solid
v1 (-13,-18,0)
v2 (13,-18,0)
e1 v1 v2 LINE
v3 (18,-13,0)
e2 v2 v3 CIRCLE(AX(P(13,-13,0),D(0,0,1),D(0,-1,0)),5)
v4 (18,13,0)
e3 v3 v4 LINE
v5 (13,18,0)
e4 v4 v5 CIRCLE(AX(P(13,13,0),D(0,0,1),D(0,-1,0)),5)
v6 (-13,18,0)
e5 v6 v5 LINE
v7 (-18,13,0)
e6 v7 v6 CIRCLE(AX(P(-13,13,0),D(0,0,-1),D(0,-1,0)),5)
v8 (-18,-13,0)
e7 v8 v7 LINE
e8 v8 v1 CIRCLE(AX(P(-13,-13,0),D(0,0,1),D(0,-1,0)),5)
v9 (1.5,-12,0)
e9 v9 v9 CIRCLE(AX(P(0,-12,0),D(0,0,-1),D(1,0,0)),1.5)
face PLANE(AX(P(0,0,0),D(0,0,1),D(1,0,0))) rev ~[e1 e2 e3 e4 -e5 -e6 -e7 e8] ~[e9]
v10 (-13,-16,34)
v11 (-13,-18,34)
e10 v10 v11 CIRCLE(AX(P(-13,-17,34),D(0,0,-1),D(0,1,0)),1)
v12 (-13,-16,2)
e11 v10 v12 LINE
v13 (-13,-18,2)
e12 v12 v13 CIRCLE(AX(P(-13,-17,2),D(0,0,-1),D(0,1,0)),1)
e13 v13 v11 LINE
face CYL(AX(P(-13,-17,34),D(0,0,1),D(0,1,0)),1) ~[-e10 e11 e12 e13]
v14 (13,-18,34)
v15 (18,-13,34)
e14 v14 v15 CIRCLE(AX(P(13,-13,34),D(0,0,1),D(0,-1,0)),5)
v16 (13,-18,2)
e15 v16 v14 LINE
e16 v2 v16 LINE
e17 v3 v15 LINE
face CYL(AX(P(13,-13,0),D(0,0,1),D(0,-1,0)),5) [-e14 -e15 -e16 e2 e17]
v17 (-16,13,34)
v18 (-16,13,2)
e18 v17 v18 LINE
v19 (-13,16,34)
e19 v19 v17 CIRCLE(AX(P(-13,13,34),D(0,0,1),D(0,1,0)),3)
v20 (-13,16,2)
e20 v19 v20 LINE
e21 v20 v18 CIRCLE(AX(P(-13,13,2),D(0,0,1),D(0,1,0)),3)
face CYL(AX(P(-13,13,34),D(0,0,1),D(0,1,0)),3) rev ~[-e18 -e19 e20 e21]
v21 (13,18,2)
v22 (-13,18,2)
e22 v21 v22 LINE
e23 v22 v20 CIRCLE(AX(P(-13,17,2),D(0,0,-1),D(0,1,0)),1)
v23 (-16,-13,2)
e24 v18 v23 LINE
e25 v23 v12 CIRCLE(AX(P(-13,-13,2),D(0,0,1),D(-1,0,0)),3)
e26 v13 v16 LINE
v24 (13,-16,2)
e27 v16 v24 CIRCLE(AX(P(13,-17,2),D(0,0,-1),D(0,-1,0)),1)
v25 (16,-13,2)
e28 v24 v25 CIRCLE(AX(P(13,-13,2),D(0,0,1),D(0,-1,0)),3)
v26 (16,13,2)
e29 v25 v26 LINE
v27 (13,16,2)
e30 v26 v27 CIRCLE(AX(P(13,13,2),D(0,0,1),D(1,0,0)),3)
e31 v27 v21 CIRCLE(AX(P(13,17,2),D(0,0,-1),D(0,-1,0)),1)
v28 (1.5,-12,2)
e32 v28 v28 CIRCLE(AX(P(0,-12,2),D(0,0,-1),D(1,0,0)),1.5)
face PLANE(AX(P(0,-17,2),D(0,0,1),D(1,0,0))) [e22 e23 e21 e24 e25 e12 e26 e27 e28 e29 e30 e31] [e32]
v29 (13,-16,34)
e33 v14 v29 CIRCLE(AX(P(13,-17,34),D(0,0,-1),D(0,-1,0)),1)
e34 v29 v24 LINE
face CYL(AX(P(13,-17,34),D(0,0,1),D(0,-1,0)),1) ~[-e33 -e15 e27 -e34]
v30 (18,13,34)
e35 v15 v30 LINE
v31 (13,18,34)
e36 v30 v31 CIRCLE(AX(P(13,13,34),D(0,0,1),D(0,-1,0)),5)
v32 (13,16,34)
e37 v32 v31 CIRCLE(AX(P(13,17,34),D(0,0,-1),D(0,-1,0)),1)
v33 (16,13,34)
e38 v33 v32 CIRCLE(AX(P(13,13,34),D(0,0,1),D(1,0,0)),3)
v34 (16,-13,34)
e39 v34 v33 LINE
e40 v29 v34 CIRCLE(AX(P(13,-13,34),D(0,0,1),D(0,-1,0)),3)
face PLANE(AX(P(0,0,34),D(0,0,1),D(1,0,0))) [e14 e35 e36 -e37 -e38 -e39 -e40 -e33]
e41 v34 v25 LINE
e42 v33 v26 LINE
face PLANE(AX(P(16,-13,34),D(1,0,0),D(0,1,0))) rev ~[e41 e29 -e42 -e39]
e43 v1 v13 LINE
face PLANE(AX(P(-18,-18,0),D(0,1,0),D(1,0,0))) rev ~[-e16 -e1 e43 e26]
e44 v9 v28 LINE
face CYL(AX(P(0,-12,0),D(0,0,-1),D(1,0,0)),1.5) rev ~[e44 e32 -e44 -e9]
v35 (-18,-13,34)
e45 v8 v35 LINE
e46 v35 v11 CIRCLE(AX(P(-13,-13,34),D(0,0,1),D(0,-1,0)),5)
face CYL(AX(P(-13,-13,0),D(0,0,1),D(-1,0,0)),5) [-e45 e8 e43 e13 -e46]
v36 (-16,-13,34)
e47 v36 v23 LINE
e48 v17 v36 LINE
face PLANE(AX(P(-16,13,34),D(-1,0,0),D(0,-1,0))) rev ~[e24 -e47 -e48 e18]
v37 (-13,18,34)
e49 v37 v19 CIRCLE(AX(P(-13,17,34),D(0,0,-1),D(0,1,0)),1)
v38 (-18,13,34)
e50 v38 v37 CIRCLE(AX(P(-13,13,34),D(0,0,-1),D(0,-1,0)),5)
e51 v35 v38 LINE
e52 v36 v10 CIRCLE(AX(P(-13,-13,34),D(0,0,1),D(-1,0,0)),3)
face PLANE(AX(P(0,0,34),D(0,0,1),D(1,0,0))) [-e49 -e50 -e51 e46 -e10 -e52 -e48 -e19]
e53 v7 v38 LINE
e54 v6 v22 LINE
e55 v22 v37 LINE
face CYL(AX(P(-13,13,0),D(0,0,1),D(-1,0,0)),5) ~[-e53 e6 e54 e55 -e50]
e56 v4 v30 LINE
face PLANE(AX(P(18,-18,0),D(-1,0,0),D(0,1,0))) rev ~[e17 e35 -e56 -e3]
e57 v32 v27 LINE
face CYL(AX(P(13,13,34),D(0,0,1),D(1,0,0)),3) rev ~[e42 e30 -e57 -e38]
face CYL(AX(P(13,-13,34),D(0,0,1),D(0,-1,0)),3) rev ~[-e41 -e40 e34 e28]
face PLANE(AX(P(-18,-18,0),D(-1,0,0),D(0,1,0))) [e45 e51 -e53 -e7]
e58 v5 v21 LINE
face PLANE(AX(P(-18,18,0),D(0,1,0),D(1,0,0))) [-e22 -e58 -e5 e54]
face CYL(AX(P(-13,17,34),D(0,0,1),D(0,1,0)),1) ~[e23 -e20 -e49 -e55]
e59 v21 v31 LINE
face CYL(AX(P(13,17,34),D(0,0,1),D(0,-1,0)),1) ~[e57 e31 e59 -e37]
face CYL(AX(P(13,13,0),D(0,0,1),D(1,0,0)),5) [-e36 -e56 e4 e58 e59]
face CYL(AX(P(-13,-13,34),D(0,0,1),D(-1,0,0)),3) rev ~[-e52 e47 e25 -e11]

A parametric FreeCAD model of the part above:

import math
import FreeCAD as App
import Part
import Sketcher

V = App.Vector
Q = App.Units.Quantity


def edges_at(feature, points):
    """Names of the edges that pass closest to the given points."""
    edges = feature.Shape.Edges
    near = lambda p: min(range(len(edges)), key=lambda i: edges[i].distToShape(Part.Vertex(*p))[0])
    return sorted({f"Edge{near(p) + 1}" for p in points})


def add_polygon(sketch, points):
    """Adds a closed chain of lines whose ends are joined by coincident constraints."""
    first, n = sketch.GeometryCount, len(points)
    for a, b in zip(points, points[1:] + points[:1]):
        sketch.addGeometry(Part.LineSegment(App.Vector(*a, 0), App.Vector(*b, 0)), False)
    for i in range(n):
        sketch.addConstraint(Sketcher.Constraint("Coincident", first + i, 2, first + (i + 1) % n, 1))

doc = App.newDocument("Part")
body = doc.addObject("PartDesign::Body", "Body")

# Sketch on XY plane
sketch1 = body.newObject("Sketcher::SketchObject", "Sketch")
sketch1.AttachmentSupport = (doc.getObject("XY_Plane"), [""])
sketch1.MapMode = "FlatFace"
add_polygon(sketch1, [(-18, 18), (-18, -18), (18, -18), (18, 18)])  # lines 0-3
sketch1.addConstraint([
    Sketcher.Constraint("Vertical", 0),
    Sketcher.Constraint("Horizontal", 1),
    Sketcher.Constraint("Vertical", 2),
    Sketcher.Constraint("Horizontal", 3),
    Sketcher.Constraint("Symmetric", 0, 2, 2, 2, -1, 1),
    Sketcher.Constraint("Equal", 3, 0),
    Sketcher.Constraint("DistanceX", 1, 1, 1, 2, Q("36 mm")),
])
pad1 = body.newObject("PartDesign::Pad", "Pad")
pad1.Profile = sketch1
pad1.Length = 34
doc.recompute()

fillet = body.newObject("PartDesign::Fillet", "Fillet")
fillet.Base = (pad1, edges_at(pad1, [
    (18, 18, 17),
    (-18, 18, 17),
    (18, -18, 17),
    (-18, -18, 17),
]))
fillet.Radius = 5

# Sketch on XY plane
sketch2 = body.newObject("Sketcher::SketchObject", "Sketch001")
sketch2.AttachmentSupport = (doc.getObject("XY_Plane"), [""])
sketch2.MapMode = "FlatFace"
sketch2.AttachmentOffset = App.Placement(V(0, 0, 34), App.Rotation())
sketch2.addGeometry([
    Part.ArcOfCircle(Part.Circle(V(-13, 17, 0), V(0, 0, 1), 1), math.radians(-90), math.radians(90)),  # 0
    Part.ArcOfCircle(Part.Circle(V(-13, 13, 0), V(0, 0, 1), 3), math.radians(90), math.radians(180)),  # 1
    Part.LineSegment(V(-16, 13, 0), V(-16, -13, 0)),  # 2
    Part.ArcOfCircle(Part.Circle(V(-13, -13, 0), V(0, 0, 1), 3), math.radians(180), math.radians(270)),  # 3
    Part.LineSegment(V(-13, -16, 0), V(13, -16, 0)),  # 4
    Part.ArcOfCircle(Part.Circle(V(13, -13, 0), V(0, 0, 1), 3), math.radians(-90), math.radians(0)),  # 5
    Part.LineSegment(V(16, -13, 0), V(16, 13, 0)),  # 6
    Part.ArcOfCircle(Part.Circle(V(13, 13, 0), V(0, 0, 1), 3), math.radians(0), math.radians(90)),  # 7
    Part.ArcOfCircle(Part.Circle(V(13, 17, 0), V(0, 0, 1), 1), math.radians(90), math.radians(270)),  # 8
    Part.LineSegment(V(13, 18, 0), V(-13, 18, 0)),  # 9
], False)
sketch2.addConstraint([
    Sketcher.Constraint("Tangent", 0, 1, 1, 1),
    Sketcher.Constraint("Tangent", 1, 2, 2, 1),
    Sketcher.Constraint("Tangent", 2, 2, 3, 1),
    Sketcher.Constraint("Tangent", 3, 2, 4, 1),
    Sketcher.Constraint("Tangent", 4, 2, 5, 1),
    Sketcher.Constraint("Tangent", 5, 2, 6, 1),
    Sketcher.Constraint("Tangent", 6, 2, 7, 1),
    Sketcher.Constraint("Tangent", 7, 2, 8, 2),
    Sketcher.Constraint("Tangent", 8, 1, 9, 1),
    Sketcher.Constraint("Tangent", 9, 2, 0, 2),
    Sketcher.Constraint("Vertical", 2),
    Sketcher.Constraint("Horizontal", 4),
    Sketcher.Constraint("Vertical", 6),
    Sketcher.Constraint("Horizontal", 9),
    Sketcher.Constraint("Equal", 1, 3),
    Sketcher.Constraint("Equal", 3, 5),
    Sketcher.Constraint("Equal", 5, 7),
    Sketcher.Constraint("Equal", 0, 8),
    Sketcher.Constraint("Symmetric", 1, 3, 5, 3, -1, 1),
    Sketcher.Constraint("Vertical", 0, 3, 1, 3),
    Sketcher.Constraint("Vertical", 7, 3, 8, 3),
    Sketcher.Constraint("Equal", 9, 2),
    Sketcher.Constraint("Radius", 0, Q("1 mm")),
    Sketcher.Constraint("Radius", 1, Q("3 mm")),
    Sketcher.Constraint("DistanceX", 4, 1, 4, 2, Q("26 mm")),
])
pocket1 = body.newObject("PartDesign::Pocket", "Pocket")
pocket1.Profile = sketch2
pocket1.Length = 32

# Sketch on XY plane
sketch3 = body.newObject("Sketcher::SketchObject", "Sketch002")
sketch3.AttachmentSupport = (doc.getObject("XY_Plane"), [""])
sketch3.MapMode = "FlatFace"
sketch3.addGeometry(Part.Circle(V(0, -12, 0), V(0, 0, 1), 1.5), False)
sketch3.addConstraint([
    Sketcher.Constraint("PointOnObject", 0, 3, -2),
    Sketcher.Constraint("Diameter", 0, Q("3 mm")),
    Sketcher.Constraint("DistanceY", 0, 3, -1, 1, Q("12 mm")),
])
pocket2 = body.newObject("PartDesign::Pocket", "Pocket001")
pocket2.Profile = sketch3
pocket2.Length = 25
pocket2.Reversed = True

# Sketch on XY plane
sketch4 = body.newObject("Sketcher::SketchObject", "Sketch003")
sketch4.AttachmentSupport = (doc.getObject("XY_Plane"), [""])
sketch4.MapMode = "FlatFace"
sketch4.AttachmentOffset = App.Placement(V(0, 0, 34), App.Rotation())
sketch4.addGeometry([
    Part.ArcOfCircle(Part.Circle(V(-13, -17, 0), V(0, 0, 1), 1), math.radians(-90), math.radians(90)),
    Part.LineSegment(V(-13, -18, 0), V(13, -18, 0)),
    Part.ArcOfCircle(Part.Circle(V(13, -17, 0), V(0, 0, 1), 1), math.radians(90), math.radians(270)),
    Part.LineSegment(V(13, -16, 0), V(-13, -16, 0)),
], False)
sketch4.addConstraint([
    Sketcher.Constraint("Tangent", 0, 1, 1, 1),
    Sketcher.Constraint("Tangent", 1, 2, 2, 2),
    Sketcher.Constraint("Tangent", 2, 1, 3, 1),
    Sketcher.Constraint("Tangent", 3, 2, 0, 2),
    Sketcher.Constraint("Horizontal", 1),
    Sketcher.Constraint("Horizontal", 3),
    Sketcher.Constraint("Radius", 0, Q("1 mm")),
    Sketcher.Constraint("DistanceX", 1, 1, 1, 2, Q("26 mm")),
    Sketcher.Constraint("DistanceX", 0, 3, -1, 1, Q("13 mm")),
    Sketcher.Constraint("DistanceY", 0, 3, -1, 1, Q("17 mm")),
])
pocket3 = body.newObject("PartDesign::Pocket", "Pocket002")
pocket3.Profile = sketch4
pocket3.Length = 32

doc.recompute()
